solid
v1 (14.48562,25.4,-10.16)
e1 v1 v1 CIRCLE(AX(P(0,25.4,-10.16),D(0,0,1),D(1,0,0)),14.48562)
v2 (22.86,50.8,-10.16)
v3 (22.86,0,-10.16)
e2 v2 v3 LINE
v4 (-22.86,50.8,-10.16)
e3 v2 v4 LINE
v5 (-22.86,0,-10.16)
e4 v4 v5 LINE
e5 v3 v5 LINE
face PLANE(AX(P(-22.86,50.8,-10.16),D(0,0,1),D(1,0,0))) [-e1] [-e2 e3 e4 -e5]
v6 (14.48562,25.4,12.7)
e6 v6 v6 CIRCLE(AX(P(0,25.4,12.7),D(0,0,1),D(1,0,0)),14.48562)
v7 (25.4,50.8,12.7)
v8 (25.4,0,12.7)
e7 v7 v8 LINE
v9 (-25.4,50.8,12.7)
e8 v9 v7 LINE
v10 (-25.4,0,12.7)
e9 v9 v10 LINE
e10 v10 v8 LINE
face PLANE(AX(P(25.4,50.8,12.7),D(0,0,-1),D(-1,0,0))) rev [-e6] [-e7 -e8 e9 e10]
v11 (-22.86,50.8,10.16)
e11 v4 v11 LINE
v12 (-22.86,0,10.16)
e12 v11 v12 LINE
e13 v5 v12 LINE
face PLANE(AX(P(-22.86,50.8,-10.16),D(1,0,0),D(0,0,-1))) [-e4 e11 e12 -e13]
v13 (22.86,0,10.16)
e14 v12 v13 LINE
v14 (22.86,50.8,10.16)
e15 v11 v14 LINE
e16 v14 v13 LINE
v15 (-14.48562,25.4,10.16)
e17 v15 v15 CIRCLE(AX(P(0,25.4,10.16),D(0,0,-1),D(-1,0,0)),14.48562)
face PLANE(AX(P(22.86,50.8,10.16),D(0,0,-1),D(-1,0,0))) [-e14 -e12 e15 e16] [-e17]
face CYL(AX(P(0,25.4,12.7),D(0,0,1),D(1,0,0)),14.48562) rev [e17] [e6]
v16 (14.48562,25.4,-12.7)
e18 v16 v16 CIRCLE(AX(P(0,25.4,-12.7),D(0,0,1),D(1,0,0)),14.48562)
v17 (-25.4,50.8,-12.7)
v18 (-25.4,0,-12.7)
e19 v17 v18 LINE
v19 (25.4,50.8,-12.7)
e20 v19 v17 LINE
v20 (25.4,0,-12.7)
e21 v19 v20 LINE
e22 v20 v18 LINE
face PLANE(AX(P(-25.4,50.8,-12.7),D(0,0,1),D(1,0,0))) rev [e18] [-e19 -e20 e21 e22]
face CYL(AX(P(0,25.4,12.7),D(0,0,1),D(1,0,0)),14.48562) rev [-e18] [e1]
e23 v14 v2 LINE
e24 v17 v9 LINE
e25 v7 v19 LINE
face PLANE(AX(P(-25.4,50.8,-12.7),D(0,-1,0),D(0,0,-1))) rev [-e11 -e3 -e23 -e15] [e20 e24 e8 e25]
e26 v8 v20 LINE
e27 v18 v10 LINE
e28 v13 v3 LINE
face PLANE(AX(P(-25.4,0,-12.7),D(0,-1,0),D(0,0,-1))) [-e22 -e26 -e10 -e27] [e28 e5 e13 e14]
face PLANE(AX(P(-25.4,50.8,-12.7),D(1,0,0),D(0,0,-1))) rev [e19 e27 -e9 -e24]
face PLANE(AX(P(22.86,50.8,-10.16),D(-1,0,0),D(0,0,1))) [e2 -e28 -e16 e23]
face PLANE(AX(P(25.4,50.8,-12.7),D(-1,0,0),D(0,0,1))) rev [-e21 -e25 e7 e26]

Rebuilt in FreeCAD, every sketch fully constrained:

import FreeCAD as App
import Part
import Sketcher
from FreeCAD import Vector
Q = App.Units.Quantity


def add_polygon(sketch, points):
    """Adds a closed chain of lines whose ends are joined by coincident constraints."""
    first, n = sketch.GeometryCount, len(points)
    for a, b in zip(points, points[1:] + points[:1]):
        sketch.addGeometry(Part.LineSegment(App.Vector(*a, 0), App.Vector(*b, 0)), False)
    for i in range(n):
        sketch.addConstraint(Sketcher.Constraint("Coincident", first + i, 2, first + (i + 1) % n, 1))

doc = App.newDocument("Part")
body = doc.addObject("PartDesign::Body", "Body")

# Sketch on XZ plane
sketch1 = doc.addObject("Sketcher::SketchObject", "Sketch")
body.addObject(sketch1)
sketch1.AttachmentSupport = (doc.XZ_Plane, [""])
sketch1.MapMode = "FlatFace"
add_polygon(sketch1, [(25.4, -12.7), (-25.4, -12.7), (-25.4, 12.7), (25.4, 12.7)])  # lines 0-3
add_polygon(sketch1, [(-22.86, 10.16), (-22.86, -10.16), (22.86, -10.16), (22.86, 10.16)])  # lines 4-7
sketch1.addConstraint([
    Sketcher.Constraint("Horizontal", 0),
    Sketcher.Constraint("Vertical", 1),
    Sketcher.Constraint("Horizontal", 2),
    Sketcher.Constraint("Vertical", 3),
    Sketcher.Constraint("Vertical", 4),
    Sketcher.Constraint("Horizontal", 5),
    Sketcher.Constraint("Vertical", 6),
    Sketcher.Constraint("Horizontal", 7),
    Sketcher.Constraint("Symmetric", 0, 2, 2, 2, -1, 1),
    Sketcher.Constraint("Symmetric", 4, 2, 6, 2, -1, 1),
    Sketcher.Constraint("DistanceX", 0, 2, 0, 1, Q("2 in")),
    Sketcher.Constraint("DistanceY", 1, 1, 1, 2, Q("1 in")),
    Sketcher.Constraint("DistanceX", 5, 1, 5, 2, Q("1.8 in")),
    Sketcher.Constraint("DistanceY", 4, 2, 4, 1, Q("0.8 in")),
])
pad1 = doc.addObject("PartDesign::Pad", "Pad")
body.addObject(pad1)
pad1.Profile = sketch1
pad1.Length = Q("2 in")
pad1.Reversed = True

# Sketch on XY plane
sketch2 = doc.addObject("Sketcher::SketchObject", "Sketch001")
body.addObject(sketch2)
sketch2.AttachmentSupport = (doc.XY_Plane, [""])
sketch2.MapMode = "FlatFace"
sketch2.AttachmentOffset = App.Placement(Vector(0, 0, 0.5 * 25.4), App.Rotation())
sketch2.addGeometry(Part.Circle(Vector(0, 25.4, 0), Vector(0, 0, 1), 14.48562), False)
sketch2.addConstraint([
    Sketcher.Constraint("PointOnObject", 0, 3, -2),
    Sketcher.Constraint("DistanceY", -1, 1, 0, 3, Q("1 in")),
    Sketcher.Constraint("Diameter", 0, Q("1.1406 in")),
])
doc.recompute()
hole = doc.addObject("PartDesign::Hole", "Hole")
body.addObject(hole)
hole.Profile = sketch2
hole.ThreadType = "None"
hole.Diameter = Q("1.1406 in")
hole.DepthType = "ThroughAll"

doc.recompute()
